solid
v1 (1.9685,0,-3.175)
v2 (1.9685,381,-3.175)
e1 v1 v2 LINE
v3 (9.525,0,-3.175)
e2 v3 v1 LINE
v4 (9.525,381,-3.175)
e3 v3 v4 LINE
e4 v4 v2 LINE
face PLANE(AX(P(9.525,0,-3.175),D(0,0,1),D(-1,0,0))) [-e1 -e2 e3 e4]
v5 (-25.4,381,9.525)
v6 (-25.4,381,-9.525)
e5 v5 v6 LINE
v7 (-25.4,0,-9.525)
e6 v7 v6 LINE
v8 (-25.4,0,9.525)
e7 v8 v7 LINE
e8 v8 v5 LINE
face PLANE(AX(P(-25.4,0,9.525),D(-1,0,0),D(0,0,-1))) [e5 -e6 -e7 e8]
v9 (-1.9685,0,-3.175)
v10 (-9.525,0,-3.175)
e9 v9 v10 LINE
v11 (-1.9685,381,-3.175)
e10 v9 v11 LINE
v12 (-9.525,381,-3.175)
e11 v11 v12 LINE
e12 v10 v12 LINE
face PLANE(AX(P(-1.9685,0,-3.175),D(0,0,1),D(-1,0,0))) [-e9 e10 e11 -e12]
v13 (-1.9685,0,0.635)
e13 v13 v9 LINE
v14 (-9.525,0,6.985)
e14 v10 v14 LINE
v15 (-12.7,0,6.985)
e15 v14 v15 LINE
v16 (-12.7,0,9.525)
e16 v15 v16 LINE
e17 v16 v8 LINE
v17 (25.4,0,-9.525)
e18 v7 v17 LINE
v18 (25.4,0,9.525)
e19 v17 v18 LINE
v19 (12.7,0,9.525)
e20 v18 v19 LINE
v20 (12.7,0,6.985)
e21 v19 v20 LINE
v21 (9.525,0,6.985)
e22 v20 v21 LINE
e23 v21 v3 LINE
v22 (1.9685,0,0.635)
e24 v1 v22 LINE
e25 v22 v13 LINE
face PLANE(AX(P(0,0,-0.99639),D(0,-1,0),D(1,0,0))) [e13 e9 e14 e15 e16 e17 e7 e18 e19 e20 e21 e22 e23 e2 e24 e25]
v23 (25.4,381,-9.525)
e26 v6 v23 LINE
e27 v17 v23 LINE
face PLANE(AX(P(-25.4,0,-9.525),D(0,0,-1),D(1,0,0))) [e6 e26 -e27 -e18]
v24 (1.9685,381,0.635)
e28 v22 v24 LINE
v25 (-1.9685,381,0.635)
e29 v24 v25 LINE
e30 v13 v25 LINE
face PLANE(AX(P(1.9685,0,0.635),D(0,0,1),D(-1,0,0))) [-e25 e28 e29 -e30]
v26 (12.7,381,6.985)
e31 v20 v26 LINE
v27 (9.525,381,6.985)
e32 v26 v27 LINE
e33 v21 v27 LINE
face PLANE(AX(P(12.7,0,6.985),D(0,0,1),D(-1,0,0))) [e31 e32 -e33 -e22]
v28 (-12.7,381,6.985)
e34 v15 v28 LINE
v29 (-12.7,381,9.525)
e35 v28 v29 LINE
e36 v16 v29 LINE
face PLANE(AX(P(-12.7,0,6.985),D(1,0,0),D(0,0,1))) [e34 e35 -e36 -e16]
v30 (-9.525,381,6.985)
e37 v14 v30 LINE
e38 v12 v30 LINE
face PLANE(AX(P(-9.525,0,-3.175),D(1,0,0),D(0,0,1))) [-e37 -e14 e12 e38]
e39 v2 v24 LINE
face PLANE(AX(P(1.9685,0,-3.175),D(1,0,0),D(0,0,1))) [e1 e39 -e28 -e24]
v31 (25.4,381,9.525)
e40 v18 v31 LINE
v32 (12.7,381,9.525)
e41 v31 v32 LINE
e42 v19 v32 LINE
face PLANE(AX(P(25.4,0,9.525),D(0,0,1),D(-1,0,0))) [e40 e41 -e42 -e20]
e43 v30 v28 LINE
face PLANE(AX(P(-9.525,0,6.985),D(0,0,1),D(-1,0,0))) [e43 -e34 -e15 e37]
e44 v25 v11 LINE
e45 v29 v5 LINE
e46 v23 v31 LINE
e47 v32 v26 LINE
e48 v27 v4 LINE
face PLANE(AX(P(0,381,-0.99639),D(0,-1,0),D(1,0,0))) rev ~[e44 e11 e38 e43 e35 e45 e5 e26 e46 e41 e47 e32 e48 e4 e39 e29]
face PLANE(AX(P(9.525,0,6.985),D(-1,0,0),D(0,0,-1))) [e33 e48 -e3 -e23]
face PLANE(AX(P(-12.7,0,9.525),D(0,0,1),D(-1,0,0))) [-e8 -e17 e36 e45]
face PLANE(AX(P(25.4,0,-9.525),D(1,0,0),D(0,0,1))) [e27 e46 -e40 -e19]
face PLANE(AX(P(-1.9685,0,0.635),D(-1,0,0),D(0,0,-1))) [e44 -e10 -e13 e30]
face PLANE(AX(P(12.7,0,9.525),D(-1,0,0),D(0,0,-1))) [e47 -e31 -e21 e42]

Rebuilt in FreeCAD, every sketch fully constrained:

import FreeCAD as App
import Part
import Sketcher
from FreeCAD import Vector
Q = App.Units.Quantity


def add_polygon(sketch, points):
    """Adds a closed chain of lines whose ends are joined by coincident constraints."""
    first, n = sketch.GeometryCount, len(points)
    for a, b in zip(points, points[1:] + points[:1]):
        sketch.addGeometry(Part.LineSegment(App.Vector(*a, 0), App.Vector(*b, 0)), False)
    for i in range(n):
        sketch.addConstraint(Sketcher.Constraint("Coincident", first + i, 2, first + (i + 1) % n, 1))

doc = App.newDocument("Part")
body = doc.addObject("PartDesign::Body", "Body")

# Sketch on XZ plane
sketch1 = body.newObject("Sketcher::SketchObject", "Sketch")
sketch1.AttachmentSupport = (doc.getObject("XZ_Plane"), [""])
sketch1.MapMode = "FlatFace"
add_polygon(sketch1, [(25.4, -9.5), (25.4, 9.5), (12.7, 9.5), (12.7, 7), (9.5, 7), (9.5, -3.2), (2, -3.2), (2, 0.6), (-2, 0.6), (-2, -3.2), (-9.5, -3.2), (-9.5, 7), (-12.7, 7), (-12.7, 9.5), (-25.4, 9.5), (-25.4, -9.5)])  # lines 0-15
sketch1.addConstraint(Sketcher.Constraint("Vertical", 0))
sketch1.addConstraint(Sketcher.Constraint("Horizontal", 1))
sketch1.addConstraint(Sketcher.Constraint("Vertical", 2))
sketch1.addConstraint(Sketcher.Constraint("Horizontal", 3))
sketch1.addConstraint(Sketcher.Constraint("Vertical", 4))
sketch1.addConstraint(Sketcher.Constraint("Horizontal", 5))
sketch1.addConstraint(Sketcher.Constraint("Vertical", 6))
sketch1.addConstraint(Sketcher.Constraint("Horizontal", 7))
sketch1.addConstraint(Sketcher.Constraint("Vertical", 8))
sketch1.addConstraint(Sketcher.Constraint("Horizontal", 9))
sketch1.addConstraint(Sketcher.Constraint("Vertical", 10))
sketch1.addConstraint(Sketcher.Constraint("Horizontal", 11))
sketch1.addConstraint(Sketcher.Constraint("Vertical", 12))
sketch1.addConstraint(Sketcher.Constraint("Horizontal", 13))
sketch1.addConstraint(Sketcher.Constraint("Vertical", 14))
sketch1.addConstraint(Sketcher.Constraint("Horizontal", 15))
sketch1.addConstraint(Sketcher.Constraint("Symmetric", 0, 2, 14, 2, -1, 1))
sketch1.addConstraint(Sketcher.Constraint("Symmetric", 5, 2, 8, 2, -2))
sketch1.addConstraint(Sketcher.Constraint("Symmetric", 3, 2, 10, 2, -2))
sketch1.addConstraint(Sketcher.Constraint("Symmetric", 1, 2, 12, 2, -2))
sketch1.addConstraint(Sketcher.Constraint("DistanceX", 15, 1, 15, 2, Q("2 in")))
sketch1.addConstraint(Sketcher.Constraint("DistanceX", 1, 2, 1, 1, Q("0.5 in")))
sketch1.addConstraint(Sketcher.Constraint("DistanceY", 2, 2, 2, 1, Q("0.1 in")))
sketch1.addConstraint(Sketcher.Constraint("DistanceY", 4, 2, 4, 1, Q("0.4 in")))
sketch1.addConstraint(Sketcher.Constraint("DistanceY", 0, 1, 0, 2, Q("0.75 in")))
sketch1.addConstraint(Sketcher.Constraint("DistanceY", 6, 1, 6, 2, Q("0.15 in")))
sketch1.addConstraint(Sketcher.Constraint("DistanceX", 3, 2, 3, 1, Q("0.125 in")))
sketch1.addConstraint(Sketcher.Constraint("DistanceX", 7, 2, 7, 1, Q("0.155 in")))
pad1 = body.newObject("PartDesign::Pad", "Pad")
pad1.Profile = sketch1
pad1.Length = Q("15 in")
pad1.Reversed = True

doc.recompute()
